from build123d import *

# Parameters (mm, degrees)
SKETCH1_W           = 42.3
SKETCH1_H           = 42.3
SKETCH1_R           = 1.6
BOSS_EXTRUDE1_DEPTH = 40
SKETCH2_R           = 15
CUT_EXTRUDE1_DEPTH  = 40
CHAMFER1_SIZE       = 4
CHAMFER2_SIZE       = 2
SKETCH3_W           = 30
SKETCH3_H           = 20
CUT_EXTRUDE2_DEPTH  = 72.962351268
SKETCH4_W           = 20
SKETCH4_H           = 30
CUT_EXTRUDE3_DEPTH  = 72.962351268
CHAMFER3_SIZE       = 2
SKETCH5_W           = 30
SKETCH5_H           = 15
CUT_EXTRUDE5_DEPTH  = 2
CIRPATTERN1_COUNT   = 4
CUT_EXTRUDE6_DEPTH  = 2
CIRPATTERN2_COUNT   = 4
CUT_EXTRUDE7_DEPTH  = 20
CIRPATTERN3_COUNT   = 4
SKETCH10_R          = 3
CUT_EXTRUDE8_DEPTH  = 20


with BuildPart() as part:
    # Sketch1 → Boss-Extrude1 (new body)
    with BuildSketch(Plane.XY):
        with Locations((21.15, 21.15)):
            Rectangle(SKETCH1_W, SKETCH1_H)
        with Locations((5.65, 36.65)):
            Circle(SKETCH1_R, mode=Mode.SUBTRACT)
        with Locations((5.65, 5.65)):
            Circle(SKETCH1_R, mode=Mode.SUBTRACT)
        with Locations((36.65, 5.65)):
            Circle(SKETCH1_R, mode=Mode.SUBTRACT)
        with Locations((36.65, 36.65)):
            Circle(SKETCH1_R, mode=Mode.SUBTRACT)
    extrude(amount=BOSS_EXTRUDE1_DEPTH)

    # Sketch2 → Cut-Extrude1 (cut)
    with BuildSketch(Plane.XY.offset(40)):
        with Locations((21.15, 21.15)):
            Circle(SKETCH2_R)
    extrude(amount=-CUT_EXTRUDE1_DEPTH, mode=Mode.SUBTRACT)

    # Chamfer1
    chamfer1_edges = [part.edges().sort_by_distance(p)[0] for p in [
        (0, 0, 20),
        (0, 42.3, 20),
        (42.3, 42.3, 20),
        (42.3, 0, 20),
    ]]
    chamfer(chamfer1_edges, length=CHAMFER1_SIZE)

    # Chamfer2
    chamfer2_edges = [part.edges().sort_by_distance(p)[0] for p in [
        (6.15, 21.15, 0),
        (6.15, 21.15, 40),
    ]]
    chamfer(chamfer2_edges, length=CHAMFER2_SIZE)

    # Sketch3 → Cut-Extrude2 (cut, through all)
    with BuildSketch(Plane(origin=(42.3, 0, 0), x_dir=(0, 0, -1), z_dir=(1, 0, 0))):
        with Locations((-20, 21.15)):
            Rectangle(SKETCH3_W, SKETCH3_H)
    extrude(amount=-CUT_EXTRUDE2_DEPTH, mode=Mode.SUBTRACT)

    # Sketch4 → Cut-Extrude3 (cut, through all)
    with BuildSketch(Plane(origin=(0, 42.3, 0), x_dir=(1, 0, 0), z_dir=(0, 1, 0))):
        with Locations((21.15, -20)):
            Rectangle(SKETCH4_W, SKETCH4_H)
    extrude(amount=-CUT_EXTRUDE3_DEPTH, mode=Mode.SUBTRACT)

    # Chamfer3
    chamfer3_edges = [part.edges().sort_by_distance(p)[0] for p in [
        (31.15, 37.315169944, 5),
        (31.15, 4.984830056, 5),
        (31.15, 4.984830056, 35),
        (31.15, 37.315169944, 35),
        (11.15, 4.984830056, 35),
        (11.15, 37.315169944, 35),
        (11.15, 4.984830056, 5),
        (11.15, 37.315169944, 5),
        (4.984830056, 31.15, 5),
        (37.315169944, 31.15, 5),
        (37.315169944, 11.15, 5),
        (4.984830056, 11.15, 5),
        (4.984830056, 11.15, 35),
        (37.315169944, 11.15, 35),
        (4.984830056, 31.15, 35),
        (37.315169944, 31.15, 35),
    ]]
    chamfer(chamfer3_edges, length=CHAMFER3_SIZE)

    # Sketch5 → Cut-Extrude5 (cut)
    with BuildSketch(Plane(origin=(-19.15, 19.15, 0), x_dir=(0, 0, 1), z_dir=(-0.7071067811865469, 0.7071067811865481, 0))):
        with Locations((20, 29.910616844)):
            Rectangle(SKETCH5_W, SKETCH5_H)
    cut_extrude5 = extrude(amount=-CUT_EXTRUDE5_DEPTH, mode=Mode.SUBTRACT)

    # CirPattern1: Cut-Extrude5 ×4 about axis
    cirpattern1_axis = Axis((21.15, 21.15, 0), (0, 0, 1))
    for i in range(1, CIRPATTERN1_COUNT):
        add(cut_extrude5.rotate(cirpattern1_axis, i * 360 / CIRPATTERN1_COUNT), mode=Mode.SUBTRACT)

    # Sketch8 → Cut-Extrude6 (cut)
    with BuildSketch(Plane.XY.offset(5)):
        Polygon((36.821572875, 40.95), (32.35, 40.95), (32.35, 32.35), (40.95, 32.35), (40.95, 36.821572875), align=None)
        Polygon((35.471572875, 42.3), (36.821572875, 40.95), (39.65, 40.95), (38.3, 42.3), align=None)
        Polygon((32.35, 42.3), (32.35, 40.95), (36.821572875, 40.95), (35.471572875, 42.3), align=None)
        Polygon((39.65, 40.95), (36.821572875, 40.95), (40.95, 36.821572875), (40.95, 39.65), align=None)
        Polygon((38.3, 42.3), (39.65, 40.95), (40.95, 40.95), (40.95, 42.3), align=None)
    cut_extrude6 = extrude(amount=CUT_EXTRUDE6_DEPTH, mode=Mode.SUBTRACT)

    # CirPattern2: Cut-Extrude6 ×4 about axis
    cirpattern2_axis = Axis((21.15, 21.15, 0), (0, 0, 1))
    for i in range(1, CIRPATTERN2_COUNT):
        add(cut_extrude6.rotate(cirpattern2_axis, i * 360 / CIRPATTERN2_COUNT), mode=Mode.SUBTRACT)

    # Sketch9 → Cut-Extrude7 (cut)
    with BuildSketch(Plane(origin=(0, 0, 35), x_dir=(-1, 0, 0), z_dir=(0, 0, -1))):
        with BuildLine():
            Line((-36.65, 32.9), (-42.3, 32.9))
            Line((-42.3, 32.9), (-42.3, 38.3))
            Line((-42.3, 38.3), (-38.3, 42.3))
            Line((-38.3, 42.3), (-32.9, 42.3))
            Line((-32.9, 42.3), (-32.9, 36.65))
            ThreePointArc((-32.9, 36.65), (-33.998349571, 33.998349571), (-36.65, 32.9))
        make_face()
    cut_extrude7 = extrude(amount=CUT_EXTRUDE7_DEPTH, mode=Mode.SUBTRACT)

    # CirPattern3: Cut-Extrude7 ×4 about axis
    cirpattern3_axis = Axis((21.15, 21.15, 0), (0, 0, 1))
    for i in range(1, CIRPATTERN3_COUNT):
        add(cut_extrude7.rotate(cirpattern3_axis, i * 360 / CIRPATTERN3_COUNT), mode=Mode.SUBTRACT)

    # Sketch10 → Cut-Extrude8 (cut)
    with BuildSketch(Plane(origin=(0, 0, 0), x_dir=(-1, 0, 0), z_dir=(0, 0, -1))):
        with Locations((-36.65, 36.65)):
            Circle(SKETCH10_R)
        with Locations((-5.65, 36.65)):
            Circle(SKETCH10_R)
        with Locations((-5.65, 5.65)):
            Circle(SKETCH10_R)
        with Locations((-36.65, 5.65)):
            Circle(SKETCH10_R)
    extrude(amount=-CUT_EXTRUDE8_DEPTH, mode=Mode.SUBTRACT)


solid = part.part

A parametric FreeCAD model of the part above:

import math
import FreeCAD as App
import Part
import Sketcher

V = App.Vector
Q = App.Units.Quantity


def edges_at(feature, points):
    """Names of the edges that pass closest to the given points."""
    edges = feature.Shape.Edges
    near = lambda p: min(range(len(edges)), key=lambda i: edges[i].distToShape(Part.Vertex(*p))[0])
    return sorted({f"Edge{near(p) + 1}" for p in points})


def add_polygon(sketch, points):
    """Adds a closed chain of lines whose ends are joined by coincident constraints."""
    first, n = sketch.GeometryCount, len(points)
    for a, b in zip(points, points[1:] + points[:1]):
        sketch.addGeometry(Part.LineSegment(App.Vector(*a, 0), App.Vector(*b, 0)), False)
    for i in range(n):
        sketch.addConstraint(Sketcher.Constraint("Coincident", first + i, 2, first + (i + 1) % n, 1))

doc = App.newDocument("Part")
params = doc.addObject("Spreadsheet::Sheet", "Params")
for row, (alias, value) in enumerate([
    ("sketch1_diameter", "3.2 mm"),
    ("sketch1_width", "42.3 mm"),
    ("pad1_length", "40 mm"),
    ("sketch2_diameter", "30 mm"),
    ("pocket1_length", "40 mm"),
    ("chamfer_size", "4 mm"),
    ("chamfer2_size", "2 mm"),
    ("sketch3_width", "20 mm"),
    ("sketch3_height", "30 mm"),
    ("sketch4_width", "20 mm"),
    ("sketch4_height", "30 mm"),
    ("chamfer3_size", "2 mm"),
    ("sketch5_width", "30 mm"),
    ("sketch5_height", "15 mm"),
    ("pocket4_length", "2 mm"),
    ("sketch6_width", "8.6 mm"),
    ("sketch6_width2", "1.3 mm"),
    ("sketch6_height", "7.3 mm"),
    ("sketch6_height2", "1.35 mm"),
    ("pocket5_length", "2 mm"),
    ("sketch7_radius", "3.75 mm"),
    ("sketch7_width", "5.4 mm"),
    ("pocket6_length", "20 mm"),
    ("sketch8_diameter", "6 mm"),
    ("pocket7_length", "20 mm"),
], start=1):
    params.set(f"A{row}", alias)
    params.set(f"B{row}", "=" + value)
    params.setAlias(f"B{row}", alias)

body = doc.addObject("PartDesign::Body", "Body")

sketch1 = body.newObject("Sketcher::SketchObject", "Sketch")
sketch1.AttachmentSupport = (doc.getObject("XY_Plane"), [""])
sketch1.MapMode = "FlatFace"
add_polygon(sketch1, [(0, 42.3), (0, 0), (42.3, 0), (42.3, 42.3)])
sketch1.addGeometry(Part.Circle(V(5.7, 5.7, 0), V(0, 0, 1), 1.6), False)
sketch1.addGeometry(Part.Circle(V(36.6, 5.7, 0), V(0, 0, 1), 1.6), False)
sketch1.addGeometry(Part.Circle(V(5.7, 36.6, 0), V(0, 0, 1), 1.6), False)
sketch1.addGeometry(Part.Circle(V(36.6, 36.6, 0), V(0, 0, 1), 1.6), False)
sketch1.addConstraint([
    Sketcher.Constraint("Vertical", 0),
    Sketcher.Constraint("Horizontal", 1),
    Sketcher.Constraint("Vertical", 2),
    Sketcher.Constraint("Horizontal", 3),
    Sketcher.Constraint("Coincident", 0, 2, -1, 1),
    Sketcher.Constraint("Equal", 4, 5),
    Sketcher.Constraint("Equal", 5, 6),
    Sketcher.Constraint("Equal", 6, 7),
    Sketcher.Constraint("Horizontal", 4, 3, 5, 3),
    Sketcher.Constraint("Horizontal", 6, 3, 7, 3),
    Sketcher.Constraint("Vertical", 4, 3, 6, 3),
    Sketcher.Constraint("Vertical", 5, 3, 7, 3),
    Sketcher.Constraint("Equal", 3, 0),
    Sketcher.Constraint("Diameter", 4, Q("3.2 mm")),
    Sketcher.Constraint("DistanceX", 1, 1, 1, 2, Q("42.3 mm")),
    Sketcher.Constraint("DistanceX", 4, 3, 5, 3, Q("31 mm")),
    Sketcher.Constraint("DistanceY", 4, 3, 6, 3, Q("31 mm")),
    Sketcher.Constraint("DistanceX", -1, 1, 4, 3, Q("5.65 mm")),
    Sketcher.Constraint("DistanceY", -1, 1, 4, 3, Q("5.65 mm")),
])
sketch1.setExpression("Constraints[17]", "Params.sketch1_diameter")
sketch1.setExpression("Constraints[18]", "Params.sketch1_width")
pad1 = body.newObject("PartDesign::Pad", "Pad")
pad1.Profile = sketch1
pad1.setExpression("Length", "Params.pad1_length")

sketch2 = body.newObject("Sketcher::SketchObject", "Sketch001")
sketch2.AttachmentSupport = (doc.getObject("XY_Plane"), [""])
sketch2.MapMode = "FlatFace"
sketch2.AttachmentOffset = App.Placement(V(0, 0, 40), App.Rotation())
sketch2.addGeometry(Part.Circle(V(21, 21, 0), V(0, 0, 1), 15), False)
sketch2.addConstraint([
    Sketcher.Constraint("Diameter", 0, Q("30 mm")),
    Sketcher.Constraint("DistanceX", -1, 1, 0, 3, Q("21.15 mm")),
    Sketcher.Constraint("DistanceY", -1, 1, 0, 3, Q("21.15 mm")),
])
sketch2.setExpression("Constraints[0]", "Params.sketch2_diameter")
pocket1 = body.newObject("PartDesign::Pocket", "Pocket")
pocket1.Profile = sketch2
pocket1.setExpression("Length", "Params.pocket1_length")
doc.recompute()

chamfer = body.newObject("PartDesign::Chamfer", "Chamfer")
chamfer.Base = (pocket1, edges_at(pocket1, [
    (0, 0, 20),
    (0, 42.3, 20),
    (42.3, 42.3, 20),
    (42.3, 0, 20),
]))
chamfer.setExpression("Size", "Params.chamfer_size")
doc.recompute()

chamfer2 = body.newObject("PartDesign::Chamfer", "Chamfer001")
chamfer2.Base = (chamfer, edges_at(chamfer, [(6.15, 21.15, 0), (6.15, 21.15, 40)]))
chamfer2.setExpression("Size", "Params.chamfer2_size")

sketch3 = body.newObject("Sketcher::SketchObject", "Sketch002")
sketch3.AttachmentSupport = (doc.getObject("YZ_Plane"), [""])
sketch3.MapMode = "FlatFace"
sketch3.AttachmentOffset = App.Placement(V(0, 0, 42.3), App.Rotation())
add_polygon(sketch3, [(31, 35), (11, 35), (11, 5), (31, 5)])
sketch3.addConstraint([
    Sketcher.Constraint("Horizontal", 0),
    Sketcher.Constraint("Vertical", 1),
    Sketcher.Constraint("Horizontal", 2),
    Sketcher.Constraint("Vertical", 3),
    Sketcher.Constraint("DistanceX", 0, 2, 0, 1, Q("20 mm")),
    Sketcher.Constraint("DistanceY", 1, 2, 1, 1, Q("30 mm")),
    Sketcher.Constraint("DistanceY", -1, 1, 0, 2, Q("35 mm")),
    Sketcher.Constraint("DistanceX", -1, 1, 0, 2, Q("11.15 mm")),
])
sketch3.setExpression("Constraints[8]", "Params.sketch3_width")
sketch3.setExpression("Constraints[9]", "Params.sketch3_height")
pocket2 = body.newObject("PartDesign::Pocket", "Pocket001")
pocket2.Profile = sketch3
pocket2.Type = "ThroughAll"

sketch4 = body.newObject("Sketcher::SketchObject", "Sketch003")
sketch4.AttachmentSupport = (doc.getObject("XZ_Plane"), [""])
sketch4.MapMode = "FlatFace"
sketch4.AttachmentOffset = App.Placement(V(0, 0, -42.3), App.Rotation())
add_polygon(sketch4, [(11, 5), (11, 35), (31, 35), (31, 5)])
sketch4.addConstraint([
    Sketcher.Constraint("Vertical", 0),
    Sketcher.Constraint("Horizontal", 1),
    Sketcher.Constraint("Vertical", 2),
    Sketcher.Constraint("Horizontal", 3),
    Sketcher.Constraint("DistanceX", 1, 1, 1, 2, Q("20 mm")),
    Sketcher.Constraint("DistanceY", 0, 1, 0, 2, Q("30 mm")),
    Sketcher.Constraint("DistanceY", -1, 1, 0, 2, Q("35 mm")),
    Sketcher.Constraint("DistanceX", -1, 1, 0, 2, Q("11.15 mm")),
])
sketch4.setExpression("Constraints[8]", "Params.sketch4_width")
sketch4.setExpression("Constraints[9]", "Params.sketch4_height")
pocket3 = body.newObject("PartDesign::Pocket", "Pocket002")
pocket3.Profile = sketch4
pocket3.Type = "ThroughAll"
pocket3.Reversed = True
doc.recompute()

chamfer3 = body.newObject("PartDesign::Chamfer", "Chamfer002")
chamfer3.Base = (pocket3, edges_at(pocket3, [
    (31.15, 37.315, 5),
    (31.15, 4.985, 5),
    (31.15, 4.985, 35),
    (31.15, 37.315, 35),
    (11.15, 4.985, 35),
    (11.15, 37.315, 35),
    (11.15, 4.985, 5),
    (11.15, 37.315, 5),
    (4.985, 31.15, 5),
    (37.315, 31.15, 5),
    (37.315, 11.15, 5),
    (4.985, 11.15, 5),
    (4.985, 11.15, 35),
    (37.315, 11.15, 35),
    (4.985, 31.15, 35),
    (37.315, 31.15, 35),
]))
chamfer3.setExpression("Size", "Params.chamfer3_size")

sketch5 = body.newObject("Sketcher::SketchObject", "Sketch004")
sketch5.Placement = App.Placement(V(-19.15, 19.15, 0), App.Rotation(V(0, 0, 1), V(0.707106781, 0.707106781, 0), V(-0.707106781, 0.707106781, 0), "ZXY"))
add_polygon(sketch5, [(5, 37), (5, 22), (35, 22), (35, 37)])
sketch5.addConstraint([
    Sketcher.Constraint("Vertical", 0),
    Sketcher.Constraint("Horizontal", 1),
    Sketcher.Constraint("Vertical", 2),
    Sketcher.Constraint("Horizontal", 3),
    Sketcher.Constraint("DistanceX", 1, 1, 1, 2, Q("30 mm")),
    Sketcher.Constraint("DistanceY", 0, 2, 0, 1, Q("15 mm")),
    Sketcher.Constraint("DistanceX", -1, 1, 0, 2, Q("5 mm")),
    Sketcher.Constraint("DistanceY", -1, 1, 0, 2, Q("22.410617 mm")),
])
sketch5.setExpression("Constraints[8]", "Params.sketch5_width")
sketch5.setExpression("Constraints[9]", "Params.sketch5_height")
pocket4 = body.newObject("PartDesign::Pocket", "Pocket003")
pocket4.Profile = sketch5
pocket4.setExpression("Length", "Params.pocket4_length")
doc.recompute()

datumline = body.newObject("PartDesign::Line", "DatumLine")
datumline.Placement = App.Placement(V(21.15, 21.15, 0), App.Rotation(V(0, 0, 1), V(0, 0, 1)))
polarpattern = body.newObject("PartDesign::PolarPattern", "PolarPattern")
polarpattern.Originals = [pocket4]
polarpattern.Axis = (datumline, [""])
polarpattern.Angle = 360
polarpattern.Occurrences = 4
body.Tip = polarpattern

sketch6 = body.newObject("Sketcher::SketchObject", "Sketch005")
sketch6.AttachmentSupport = (doc.getObject("XY_Plane"), [""])
sketch6.MapMode = "FlatFace"
sketch6.AttachmentOffset = App.Placement(V(0, 0, 5), App.Rotation())
add_polygon(sketch6, [(32.4, 32.4), (41, 32.4), (41, 39.6), (39.6, 41), (41, 41), (41, 42.3), (32.4, 42.3)])
sketch6.addConstraint([
    Sketcher.Constraint("Horizontal", 0),
    Sketcher.Constraint("Vertical", 1),
    Sketcher.Constraint("Horizontal", 3),
    Sketcher.Constraint("Vertical", 4),
    Sketcher.Constraint("Horizontal", 5),
    Sketcher.Constraint("Vertical", 6),
    Sketcher.Constraint("Vertical", 1, 2, 3, 2),
    Sketcher.Constraint("Angle", 2, Q("135 deg")),
    Sketcher.Constraint("DistanceX", 0, 1, 0, 2, Q("8.6 mm")),
    Sketcher.Constraint("DistanceX", 3, 1, 3, 2, Q("1.3 mm")),
    Sketcher.Constraint("DistanceY", 1, 1, 1, 2, Q("7.3 mm")),
    Sketcher.Constraint("DistanceY", 4, 1, 4, 2, Q("1.35 mm")),
    Sketcher.Constraint("DistanceY", -1, 1, 4, 2, Q("42.3 mm")),
    Sketcher.Constraint("DistanceX", -1, 1, 0, 2, Q("40.95 mm")),
])
sketch6.setExpression("Constraints[15]", "Params.sketch6_width")
sketch6.setExpression("Constraints[16]", "Params.sketch6_width2")
sketch6.setExpression("Constraints[17]", "Params.sketch6_height")
sketch6.setExpression("Constraints[18]", "Params.sketch6_height2")
pocket5 = body.newObject("PartDesign::Pocket", "Pocket004")
pocket5.Profile = sketch6
pocket5.setExpression("Length", "Params.pocket5_length")
pocket5.Reversed = True
doc.recompute()

datumline2 = body.newObject("PartDesign::Line", "DatumLine001")
datumline2.Placement = App.Placement(V(21.15, 21.15, 0), App.Rotation(V(0, 0, 1), V(0, 0, 1)))
polarpattern2 = body.newObject("PartDesign::PolarPattern", "PolarPattern001")
polarpattern2.Originals = [pocket5]
polarpattern2.Axis = (datumline2, [""])
polarpattern2.Angle = 360
polarpattern2.Occurrences = 4
body.Tip = polarpattern2

sketch7 = body.newObject("Sketcher::SketchObject", "Sketch006")
sketch7.AttachmentSupport = (doc.getObject("XY_Plane"), [""])
sketch7.MapMode = "FlatFace"
sketch7.AttachmentOffset = App.Placement(V(0, 0, 35), App.Rotation())
sketch7.addGeometry([
    Part.LineSegment(V(42.3, 32.9, 0), V(36.6, 32.9, 0)),
    Part.ArcOfCircle(Part.Circle(V(36.7, 36.7, 0), V(0, 0, 1), 3.8), math.radians(-180), math.radians(-90)),
    Part.LineSegment(V(32.9, 36.6, 0), V(32.9, 42.3, 0)),
    Part.LineSegment(V(32.9, 42.3, 0), V(38.3, 42.3, 0)),
    Part.LineSegment(V(38.3, 42.3, 0), V(42.3, 38.3, 0)),
    Part.LineSegment(V(42.3, 38.3, 0), V(42.3, 32.9, 0)),
], False)
sketch7.addConstraint([
    Sketcher.Constraint("Tangent", 0, 2, 1, 2),
    Sketcher.Constraint("Tangent", 1, 1, 2, 1),
    Sketcher.Constraint("Coincident", 2, 2, 3, 1),
    Sketcher.Constraint("Coincident", 3, 2, 4, 1),
    Sketcher.Constraint("Coincident", 4, 2, 5, 1),
    Sketcher.Constraint("Coincident", 5, 2, 0, 1),
    Sketcher.Constraint("Horizontal", 0),
    Sketcher.Constraint("Vertical", 2),
    Sketcher.Constraint("Horizontal", 3),
    Sketcher.Constraint("Vertical", 5),
    Sketcher.Constraint("Equal", 0, 2),
    Sketcher.Constraint("Equal", 3, 5),
    Sketcher.Constraint("Radius", 1, Q("3.75 mm")),
    Sketcher.Constraint("DistanceX", 3, 1, 3, 2, Q("5.4 mm")),
    Sketcher.Constraint("DistanceX", 3, 2, 4, 2, Q("4 mm")),
    Sketcher.Constraint("DistanceY", -1, 1, 0, 2, Q("32.9 mm")),
    Sketcher.Constraint("DistanceX", -1, 1, 1, 1, Q("32.9 mm")),
])
sketch7.setExpression("Constraints[12]", "Params.sketch7_radius")
sketch7.setExpression("Constraints[13]", "Params.sketch7_width")
pocket6 = body.newObject("PartDesign::Pocket", "Pocket005")
pocket6.Profile = sketch7
pocket6.setExpression("Length", "Params.pocket6_length")
doc.recompute()

datumline3 = body.newObject("PartDesign::Line", "DatumLine002")
datumline3.Placement = App.Placement(V(21.15, 21.15, 0), App.Rotation(V(0, 0, 1), V(0, 0, 1)))
polarpattern3 = body.newObject("PartDesign::PolarPattern", "PolarPattern002")
polarpattern3.Originals = [pocket6]
polarpattern3.Axis = (datumline3, [""])
polarpattern3.Angle = 360
polarpattern3.Occurrences = 4
body.Tip = polarpattern3

sketch8 = body.newObject("Sketcher::SketchObject", "Sketch007")
sketch8.AttachmentSupport = (doc.getObject("XY_Plane"), [""])
sketch8.MapMode = "FlatFace"
sketch8.addGeometry([
    Part.Circle(V(36.6, 36.6, 0), V(0, 0, 1), 3),
    Part.Circle(V(5.7, 36.6, 0), V(0, 0, 1), 3),
    Part.Circle(V(5.7, 5.7, 0), V(0, 0, 1), 3),
    Part.Circle(V(36.6, 5.7, 0), V(0, 0, 1), 3),
], False)
sketch8.addConstraint([
    Sketcher.Constraint("Equal", 0, 1),
    Sketcher.Constraint("Equal", 1, 2),
    Sketcher.Constraint("Equal", 2, 3),
    Sketcher.Constraint("Horizontal", 0, 3, 1, 3),
    Sketcher.Constraint("Horizontal", 2, 3, 3, 3),
    Sketcher.Constraint("Vertical", 1, 3, 2, 3),
    Sketcher.Constraint("Vertical", 0, 3, 3, 3),
    Sketcher.Constraint("Diameter", 0, Q("6 mm")),
    Sketcher.Constraint("DistanceX", 1, 3, 0, 3, Q("31 mm")),
    Sketcher.Constraint("DistanceY", 2, 3, 1, 3, Q("31 mm")),
    Sketcher.Constraint("DistanceX", -1, 1, 0, 3, Q("36.65 mm")),
    Sketcher.Constraint("DistanceY", -1, 1, 0, 3, Q("36.65 mm")),
])
sketch8.setExpression("Constraints[7]", "Params.sketch8_diameter")
pocket7 = body.newObject("PartDesign::Pocket", "Pocket006")
pocket7.Profile = sketch8
pocket7.setExpression("Length", "Params.pocket7_length")
pocket7.Reversed = True

doc.recompute()
